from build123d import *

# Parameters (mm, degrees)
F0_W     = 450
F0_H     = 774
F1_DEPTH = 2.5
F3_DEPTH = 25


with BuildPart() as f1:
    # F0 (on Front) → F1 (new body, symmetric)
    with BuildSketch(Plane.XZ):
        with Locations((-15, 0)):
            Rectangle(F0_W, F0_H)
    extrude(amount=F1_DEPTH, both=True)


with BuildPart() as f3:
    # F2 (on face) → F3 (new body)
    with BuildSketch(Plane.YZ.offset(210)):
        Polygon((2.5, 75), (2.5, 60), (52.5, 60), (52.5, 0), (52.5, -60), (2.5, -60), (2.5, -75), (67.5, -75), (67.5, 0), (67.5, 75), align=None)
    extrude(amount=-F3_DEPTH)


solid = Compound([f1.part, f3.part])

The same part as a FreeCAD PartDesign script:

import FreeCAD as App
import Part
import Sketcher
Q = App.Units.Quantity


def add_polygon(sketch, points):
    """Adds a closed chain of lines whose ends are joined by coincident constraints."""
    first, n = sketch.GeometryCount, len(points)
    for a, b in zip(points, points[1:] + points[:1]):
        sketch.addGeometry(Part.LineSegment(App.Vector(*a, 0), App.Vector(*b, 0)), False)
    for i in range(n):
        sketch.addConstraint(Sketcher.Constraint("Coincident", first + i, 2, first + (i + 1) % n, 1))

doc = App.newDocument("Part")
body = doc.addObject("PartDesign::Body", "Body")

sketch1 = doc.addObject("Sketcher::SketchObject", "Sketch")
body.addObject(sketch1)
sketch1.AttachmentSupport = (doc.XZ_Plane, [""])
sketch1.MapMode = "FlatFace"
add_polygon(sketch1, [(-240, 387), (-240, -387), (210, -387), (210, 387)])
sketch1.addConstraint([
    Sketcher.Constraint("Vertical", 0),
    Sketcher.Constraint("Horizontal", 1),
    Sketcher.Constraint("Vertical", 2),
    Sketcher.Constraint("Horizontal", 3),
    Sketcher.Constraint("DistanceX", 1, 1, 1, 2, Q("450 mm")),
    Sketcher.Constraint("DistanceY", 0, 2, 0, 1, Q("774 mm")),
    Sketcher.Constraint("DistanceX", 0, 2, -1, 1, Q("240 mm")),
    Sketcher.Constraint("DistanceY", 0, 2, -1, 1, Q("387 mm")),
])
pad1 = doc.addObject("PartDesign::Pad", "Pad")
body.addObject(pad1)
pad1.Profile = sketch1
pad1.Length = 5
pad1.Midplane = True
body2 = doc.addObject("PartDesign::Body", "Body001")

sketch2 = doc.addObject("Sketcher::SketchObject", "Sketch001")
body2.addObject(sketch2)
sketch2.AttachmentSupport = (doc.getObject("YZ_Plane001"), [""])
sketch2.MapMode = "FlatFace"
sketch2.AttachmentOffset = App.Placement(App.Vector(0, 0, 210), App.Rotation())
add_polygon(sketch2, [(2, 75), (2, 60), (52, 60), (52, -60), (2, -60), (2, -75), (68, -75), (68, 75)])
sketch2.addConstraint([
    Sketcher.Constraint("Vertical", 0),
    Sketcher.Constraint("Horizontal", 1),
    Sketcher.Constraint("Vertical", 2),
    Sketcher.Constraint("Horizontal", 3),
    Sketcher.Constraint("Vertical", 4),
    Sketcher.Constraint("Horizontal", 5),
    Sketcher.Constraint("Vertical", 6),
    Sketcher.Constraint("Horizontal", 7),
    Sketcher.Constraint("Symmetric", 0, 2, 3, 2, -1),
    Sketcher.Constraint("Equal", 0, 4),
    Sketcher.Constraint("DistanceX", 1, 1, 1, 2, Q("50 mm")),
    Sketcher.Constraint("DistanceX", 5, 1, 5, 2, Q("65 mm")),
    Sketcher.Constraint("DistanceY", 0, 2, 0, 1, Q("15 mm")),
    Sketcher.Constraint("DistanceY", 2, 2, 2, 1, Q("120 mm")),
    Sketcher.Constraint("DistanceX", -1, 1, 0, 2, Q("2.5 mm")),
])
pad2 = doc.addObject("PartDesign::Pad", "Pad001")
body2.addObject(pad2)
pad2.Profile = sketch2
pad2.Length = 25
pad2.Reversed = True

doc.recompute()
